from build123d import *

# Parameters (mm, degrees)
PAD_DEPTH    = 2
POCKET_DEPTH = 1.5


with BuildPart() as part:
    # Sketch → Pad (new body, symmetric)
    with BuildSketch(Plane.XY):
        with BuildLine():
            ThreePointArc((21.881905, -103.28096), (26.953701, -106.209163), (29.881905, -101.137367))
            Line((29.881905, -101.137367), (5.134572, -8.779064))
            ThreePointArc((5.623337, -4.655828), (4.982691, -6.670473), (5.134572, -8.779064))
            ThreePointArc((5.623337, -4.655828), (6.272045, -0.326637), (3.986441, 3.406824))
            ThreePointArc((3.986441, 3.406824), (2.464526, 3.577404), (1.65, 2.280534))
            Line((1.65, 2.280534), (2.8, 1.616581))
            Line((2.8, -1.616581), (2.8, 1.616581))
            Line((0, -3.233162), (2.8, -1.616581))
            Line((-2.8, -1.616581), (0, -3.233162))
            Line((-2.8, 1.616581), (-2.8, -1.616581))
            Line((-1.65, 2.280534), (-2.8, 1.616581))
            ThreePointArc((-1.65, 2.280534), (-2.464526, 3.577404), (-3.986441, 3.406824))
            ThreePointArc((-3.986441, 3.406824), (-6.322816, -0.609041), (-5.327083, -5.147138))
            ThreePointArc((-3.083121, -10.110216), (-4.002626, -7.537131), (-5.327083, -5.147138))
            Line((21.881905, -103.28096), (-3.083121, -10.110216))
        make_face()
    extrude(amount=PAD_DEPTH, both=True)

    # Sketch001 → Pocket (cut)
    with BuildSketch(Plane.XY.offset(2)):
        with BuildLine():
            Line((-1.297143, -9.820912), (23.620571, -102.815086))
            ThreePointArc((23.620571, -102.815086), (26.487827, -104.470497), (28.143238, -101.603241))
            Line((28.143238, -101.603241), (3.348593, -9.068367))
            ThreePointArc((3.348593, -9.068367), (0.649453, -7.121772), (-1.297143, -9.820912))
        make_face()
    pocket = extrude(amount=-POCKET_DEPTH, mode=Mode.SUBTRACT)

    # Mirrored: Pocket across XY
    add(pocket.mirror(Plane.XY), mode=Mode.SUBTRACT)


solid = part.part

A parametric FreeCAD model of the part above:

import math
import FreeCAD as App
import Part
import Sketcher
from FreeCAD import Vector
Q = App.Units.Quantity

doc = App.newDocument("Part")
body = doc.addObject("PartDesign::Body", "Body")

sketch1 = body.newObject("Sketcher::SketchObject", "Sketch")
sketch1.AttachmentSupport = (doc.getObject("XY_Plane"), [""])
sketch1.MapMode = "FlatFace"
sketch1.addGeometry(Part.ArcOfCircle(Part.Circle(Vector(25.9, -102.2, 0), Vector(0, 0, 1), 4.1), math.radians(-165), math.radians(15)), False)
sketch1.addGeometry(Part.LineSegment(Vector(29.9, -101.1, 0), Vector(5.1, -8.8, 0)), False)
sketch1.addGeometry(Part.ArcOfCircle(Part.Circle(Vector(10.5, -7.3, 0), Vector(0, 0, 1), 5.6), math.radians(151), math.radians(195)), False)
sketch1.addGeometry(Part.ArcOfCircle(Part.Circle(Vector(0, -1.6, 0), Vector(0, 0, 1), 6.4), math.radians(-29), math.radians(51)), False)
sketch1.addGeometry(Part.ArcOfCircle(Part.Circle(Vector(3.1, 2.3, 0), Vector(0, 0, 1), 1.4), math.radians(51), math.radians(180)), False)
sketch1.addGeometry(Part.LineSegment(Vector(1.6, 2.3, 0), Vector(2.8, 1.6, 0)), False)
sketch1.addGeometry(Part.LineSegment(Vector(2.8, 1.6, 0), Vector(2.8, -1.6, 0)), False)
sketch1.addGeometry(Part.LineSegment(Vector(2.8, -1.6, 0), Vector(0, -3.2, 0)), False)
sketch1.addGeometry(Part.LineSegment(Vector(0, -3.2, 0), Vector(-2.8, -1.6, 0)), False)
sketch1.addGeometry(Part.LineSegment(Vector(-2.8, -1.6, 0), Vector(-2.8, 1.6, 0)), False)
sketch1.addGeometry(Part.LineSegment(Vector(-2.8, 1.6, 0), Vector(-1.6, 2.3, 0)), False)
sketch1.addGeometry(Part.ArcOfCircle(Part.Circle(Vector(-3.1, 2.3, 0), Vector(0, 0, 1), 1.4), math.radians(0), math.radians(129)), False)
sketch1.addGeometry(Part.ArcOfCircle(Part.Circle(Vector(0, -1.6, 0), Vector(0, 0, 1), 6.4), math.radians(129), math.radians(214)), False)
sketch1.addGeometry(Part.ArcOfCircle(Part.Circle(Vector(-19.3, -14.5, 0), Vector(0, 0, 1), 16.8), math.radians(15), math.radians(33.66)), False)
sketch1.addGeometry(Part.LineSegment(Vector(-3.1, -10.1, 0), Vector(21.9, -103.3, 0)), False)
sketch1.addConstraint(Sketcher.Constraint("Tangent", 0, 2, 1, 1))
sketch1.addConstraint(Sketcher.Constraint("Tangent", 1, 2, 2, 2))
sketch1.addConstraint(Sketcher.Constraint("Tangent", 2, 1, 3, 1))
sketch1.addConstraint(Sketcher.Constraint("Tangent", 3, 2, 4, 1))
sketch1.addConstraint(Sketcher.Constraint("Coincident", 4, 2, 5, 1))
sketch1.addConstraint(Sketcher.Constraint("Coincident", 5, 2, 6, 1))
sketch1.addConstraint(Sketcher.Constraint("Coincident", 6, 2, 7, 1))
sketch1.addConstraint(Sketcher.Constraint("Coincident", 7, 2, 8, 1))
sketch1.addConstraint(Sketcher.Constraint("Coincident", 8, 2, 9, 1))
sketch1.addConstraint(Sketcher.Constraint("Coincident", 9, 2, 10, 1))
sketch1.addConstraint(Sketcher.Constraint("Coincident", 10, 2, 11, 1))
sketch1.addConstraint(Sketcher.Constraint("Tangent", 11, 2, 12, 1))
sketch1.addConstraint(Sketcher.Constraint("Tangent", 12, 2, 13, 2))
sketch1.addConstraint(Sketcher.Constraint("Tangent", 13, 1, 14, 1))
sketch1.addConstraint(Sketcher.Constraint("Tangent", 14, 2, 0, 1))
sketch1.addConstraint(Sketcher.Constraint("Vertical", 6))
sketch1.addConstraint(Sketcher.Constraint("Vertical", 9))
sketch1.addConstraint(Sketcher.Constraint("Coincident", 12, 3, 3, 3))
sketch1.addConstraint(Sketcher.Constraint("Equal", 4, 11))
sketch1.addConstraint(Sketcher.Constraint("Equal", 3, 12))
sketch1.addConstraint(Sketcher.Constraint("Symmetric", 5, 2, 8, 2, -1, 1))
sketch1.addConstraint(Sketcher.Constraint("Symmetric", 4, 3, 11, 3, -2))
sketch1.addConstraint(Sketcher.Constraint("PointOnObject", 7, 2, -2))
sketch1.addConstraint(Sketcher.Constraint("Parallel", 5, 8))
sketch1.addConstraint(Sketcher.Constraint("Parallel", 7, 10))
sketch1.addConstraint(Sketcher.Constraint("Parallel", 1, 14))
sketch1.addConstraint(Sketcher.Constraint("Horizontal", 11, 3, 4, 2))
sketch1.addConstraint(Sketcher.Constraint("Horizontal", 6, 2, 8, 2))
sketch1.addConstraint(Sketcher.Constraint("Horizontal", 5, 2, 9, 2))
sketch1.addConstraint(Sketcher.Constraint("Radius", 2, 5.599998))
sketch1.addConstraint(Sketcher.Constraint("Radius", 3, 6.4))
sketch1.addConstraint(Sketcher.Constraint("Angle", 1, Q("105 deg")))
sketch1.addConstraint(Sketcher.Constraint("Angle", 5, Q("-30.000007 deg")))
sketch1.addConstraint(Sketcher.Constraint("DistanceX", 0, 3, 0, 2, 4.0))
sketch1.addConstraint(Sketcher.Constraint("DistanceY", 3, 3, -1, 1, 1.6))
sketch1.addConstraint(Sketcher.Constraint("DistanceX", -1, 1, 5, 2, 2.8))
sketch1.addConstraint(Sketcher.Constraint("DistanceX", 10, 2, 4, 2, 3.3))
sketch1.addConstraint(Sketcher.Constraint("Radius", 13, 16.800011))
sketch1.addConstraint(Sketcher.Constraint("Radius", 4, 1.439687))
sketch1.addConstraint(Sketcher.Constraint("DistanceY", 1, 2, 4, 3, 11.059598))
sketch1.addConstraint(Sketcher.Constraint("Distance", 1, 95.616351))
pad1 = body.newObject("PartDesign::Pad", "Pad")
pad1.Profile = sketch1
pad1.Length = 4
pad1.Midplane = True

sketch2 = body.newObject("Sketcher::SketchObject", "Sketch001")
sketch2.AttachmentSupport = (doc.getObject("XY_Plane"), [""])
sketch2.MapMode = "FlatFace"
sketch2.AttachmentOffset = App.Placement(Vector(0, 0, 2), App.Rotation())
sketch2.addGeometry(Part.LineSegment(Vector(-1.3, -9.8, 0), Vector(23.6, -102.8, 0)), False)
sketch2.addGeometry(Part.ArcOfCircle(Part.Circle(Vector(25.9, -102.2, 0), Vector(0, 0, 1), 2.3), math.radians(-165), math.radians(15)), False)
sketch2.addGeometry(Part.LineSegment(Vector(28.1, -101.6, 0), Vector(3.3, -9.1, 0)), False)
sketch2.addGeometry(Part.ArcOfCircle(Part.Circle(Vector(1, -9.4, 0), Vector(0, 0, 1), 2.4), math.radians(9), math.radians(189)), False)
sketch2.addConstraint(Sketcher.Constraint("Tangent", 0, 2, 1, 1))
sketch2.addConstraint(Sketcher.Constraint("Tangent", 1, 2, 2, 1))
sketch2.addConstraint(Sketcher.Constraint("Coincident", 2, 2, 3, 1))
sketch2.addConstraint(Sketcher.Constraint("Coincident", 3, 2, 0, 1))
sketch2.addConstraint(Sketcher.Constraint("Parallel", 0, 2))
sketch2.addConstraint(Sketcher.Constraint("Angle", 0, Q("-75 deg")))
sketch2.addConstraint(Sketcher.Constraint("Radius", 1, 2.341105))
sketch2.addConstraint(Sketcher.Constraint("Radius", 3, 2.353146))
sketch2.addConstraint(Sketcher.Constraint("DistanceY", 1, 2, 3, 3, 92.158601))
sketch2.addConstraint(Sketcher.Constraint("Distance", 2, 95.799151))
sketch2.addConstraint(Sketcher.Constraint("DistanceY", 3, 3, -1, 1, 9.44464))
sketch2.addConstraint(Sketcher.Constraint("DistanceX", -1, 1, 0, 2, 23.620571))
pocket1 = body.newObject("PartDesign::Pocket", "Pocket")
pocket1.Profile = sketch2
pocket1.Length = 1.5
doc.recompute()

mirrored = body.newObject("PartDesign::Mirrored", "Mirrored")
mirrored.Originals = [pocket1]
mirrored.MirrorPlane = (doc.getObject("XY_Plane"), [""])
body.Tip = mirrored

doc.recompute()
